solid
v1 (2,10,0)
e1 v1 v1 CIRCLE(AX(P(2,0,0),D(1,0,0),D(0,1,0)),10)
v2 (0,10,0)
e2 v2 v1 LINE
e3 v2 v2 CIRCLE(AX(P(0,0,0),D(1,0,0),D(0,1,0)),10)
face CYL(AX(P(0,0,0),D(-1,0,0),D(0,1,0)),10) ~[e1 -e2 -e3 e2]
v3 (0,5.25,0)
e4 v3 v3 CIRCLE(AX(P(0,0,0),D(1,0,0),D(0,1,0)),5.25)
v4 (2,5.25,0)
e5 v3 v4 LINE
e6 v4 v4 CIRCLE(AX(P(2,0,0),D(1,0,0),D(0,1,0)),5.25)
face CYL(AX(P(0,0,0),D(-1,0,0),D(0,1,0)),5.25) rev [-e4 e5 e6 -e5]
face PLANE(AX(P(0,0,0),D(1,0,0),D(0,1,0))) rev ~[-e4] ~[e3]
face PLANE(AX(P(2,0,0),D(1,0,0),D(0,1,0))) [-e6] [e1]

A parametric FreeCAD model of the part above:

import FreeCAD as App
import Part
import Sketcher
from FreeCAD import Vector
Q = App.Units.Quantity

doc = App.newDocument("Part")
params = doc.addObject("Spreadsheet::Sheet", "Params")
for row, (alias, value) in enumerate([
    ("sketch1_diameter", "20 mm"),
    ("sketch1_diameter2", "10.5 mm"),
    ("pad1_length", "2 mm"),
], start=1):
    params.set(f"A{row}", alias)
    params.set(f"B{row}", "=" + value)
    params.setAlias(f"B{row}", alias)

body = doc.addObject("PartDesign::Body", "Body")

# Sketch on YZ plane
sketch1 = doc.addObject("Sketcher::SketchObject", "Sketch")
body.addObject(sketch1)
sketch1.AttachmentSupport = (doc.YZ_Plane, [""])
sketch1.MapMode = "FlatFace"
sketch1.addGeometry([
    Part.Circle(Vector(0, 0, 0), Vector(0, 0, 1), 10),
    Part.Circle(Vector(0, 0, 0), Vector(0, 0, 1), 5),
], False)
sketch1.addConstraint([
    Sketcher.Constraint("Coincident", 0, 3, -1, 1),
    Sketcher.Constraint("Coincident", 1, 3, -1, 1),
    Sketcher.Constraint("Diameter", 0, Q("20 mm")),
    Sketcher.Constraint("Diameter", 1, Q("10.5 mm")),
])
sketch1.setExpression("Constraints[2]", "Params.sketch1_diameter")
sketch1.setExpression("Constraints[3]", "Params.sketch1_diameter2")
pad1 = doc.addObject("PartDesign::Pad", "Pad")
body.addObject(pad1)
pad1.Profile = sketch1
pad1.setExpression("Length", "Params.pad1_length")

doc.recompute()
